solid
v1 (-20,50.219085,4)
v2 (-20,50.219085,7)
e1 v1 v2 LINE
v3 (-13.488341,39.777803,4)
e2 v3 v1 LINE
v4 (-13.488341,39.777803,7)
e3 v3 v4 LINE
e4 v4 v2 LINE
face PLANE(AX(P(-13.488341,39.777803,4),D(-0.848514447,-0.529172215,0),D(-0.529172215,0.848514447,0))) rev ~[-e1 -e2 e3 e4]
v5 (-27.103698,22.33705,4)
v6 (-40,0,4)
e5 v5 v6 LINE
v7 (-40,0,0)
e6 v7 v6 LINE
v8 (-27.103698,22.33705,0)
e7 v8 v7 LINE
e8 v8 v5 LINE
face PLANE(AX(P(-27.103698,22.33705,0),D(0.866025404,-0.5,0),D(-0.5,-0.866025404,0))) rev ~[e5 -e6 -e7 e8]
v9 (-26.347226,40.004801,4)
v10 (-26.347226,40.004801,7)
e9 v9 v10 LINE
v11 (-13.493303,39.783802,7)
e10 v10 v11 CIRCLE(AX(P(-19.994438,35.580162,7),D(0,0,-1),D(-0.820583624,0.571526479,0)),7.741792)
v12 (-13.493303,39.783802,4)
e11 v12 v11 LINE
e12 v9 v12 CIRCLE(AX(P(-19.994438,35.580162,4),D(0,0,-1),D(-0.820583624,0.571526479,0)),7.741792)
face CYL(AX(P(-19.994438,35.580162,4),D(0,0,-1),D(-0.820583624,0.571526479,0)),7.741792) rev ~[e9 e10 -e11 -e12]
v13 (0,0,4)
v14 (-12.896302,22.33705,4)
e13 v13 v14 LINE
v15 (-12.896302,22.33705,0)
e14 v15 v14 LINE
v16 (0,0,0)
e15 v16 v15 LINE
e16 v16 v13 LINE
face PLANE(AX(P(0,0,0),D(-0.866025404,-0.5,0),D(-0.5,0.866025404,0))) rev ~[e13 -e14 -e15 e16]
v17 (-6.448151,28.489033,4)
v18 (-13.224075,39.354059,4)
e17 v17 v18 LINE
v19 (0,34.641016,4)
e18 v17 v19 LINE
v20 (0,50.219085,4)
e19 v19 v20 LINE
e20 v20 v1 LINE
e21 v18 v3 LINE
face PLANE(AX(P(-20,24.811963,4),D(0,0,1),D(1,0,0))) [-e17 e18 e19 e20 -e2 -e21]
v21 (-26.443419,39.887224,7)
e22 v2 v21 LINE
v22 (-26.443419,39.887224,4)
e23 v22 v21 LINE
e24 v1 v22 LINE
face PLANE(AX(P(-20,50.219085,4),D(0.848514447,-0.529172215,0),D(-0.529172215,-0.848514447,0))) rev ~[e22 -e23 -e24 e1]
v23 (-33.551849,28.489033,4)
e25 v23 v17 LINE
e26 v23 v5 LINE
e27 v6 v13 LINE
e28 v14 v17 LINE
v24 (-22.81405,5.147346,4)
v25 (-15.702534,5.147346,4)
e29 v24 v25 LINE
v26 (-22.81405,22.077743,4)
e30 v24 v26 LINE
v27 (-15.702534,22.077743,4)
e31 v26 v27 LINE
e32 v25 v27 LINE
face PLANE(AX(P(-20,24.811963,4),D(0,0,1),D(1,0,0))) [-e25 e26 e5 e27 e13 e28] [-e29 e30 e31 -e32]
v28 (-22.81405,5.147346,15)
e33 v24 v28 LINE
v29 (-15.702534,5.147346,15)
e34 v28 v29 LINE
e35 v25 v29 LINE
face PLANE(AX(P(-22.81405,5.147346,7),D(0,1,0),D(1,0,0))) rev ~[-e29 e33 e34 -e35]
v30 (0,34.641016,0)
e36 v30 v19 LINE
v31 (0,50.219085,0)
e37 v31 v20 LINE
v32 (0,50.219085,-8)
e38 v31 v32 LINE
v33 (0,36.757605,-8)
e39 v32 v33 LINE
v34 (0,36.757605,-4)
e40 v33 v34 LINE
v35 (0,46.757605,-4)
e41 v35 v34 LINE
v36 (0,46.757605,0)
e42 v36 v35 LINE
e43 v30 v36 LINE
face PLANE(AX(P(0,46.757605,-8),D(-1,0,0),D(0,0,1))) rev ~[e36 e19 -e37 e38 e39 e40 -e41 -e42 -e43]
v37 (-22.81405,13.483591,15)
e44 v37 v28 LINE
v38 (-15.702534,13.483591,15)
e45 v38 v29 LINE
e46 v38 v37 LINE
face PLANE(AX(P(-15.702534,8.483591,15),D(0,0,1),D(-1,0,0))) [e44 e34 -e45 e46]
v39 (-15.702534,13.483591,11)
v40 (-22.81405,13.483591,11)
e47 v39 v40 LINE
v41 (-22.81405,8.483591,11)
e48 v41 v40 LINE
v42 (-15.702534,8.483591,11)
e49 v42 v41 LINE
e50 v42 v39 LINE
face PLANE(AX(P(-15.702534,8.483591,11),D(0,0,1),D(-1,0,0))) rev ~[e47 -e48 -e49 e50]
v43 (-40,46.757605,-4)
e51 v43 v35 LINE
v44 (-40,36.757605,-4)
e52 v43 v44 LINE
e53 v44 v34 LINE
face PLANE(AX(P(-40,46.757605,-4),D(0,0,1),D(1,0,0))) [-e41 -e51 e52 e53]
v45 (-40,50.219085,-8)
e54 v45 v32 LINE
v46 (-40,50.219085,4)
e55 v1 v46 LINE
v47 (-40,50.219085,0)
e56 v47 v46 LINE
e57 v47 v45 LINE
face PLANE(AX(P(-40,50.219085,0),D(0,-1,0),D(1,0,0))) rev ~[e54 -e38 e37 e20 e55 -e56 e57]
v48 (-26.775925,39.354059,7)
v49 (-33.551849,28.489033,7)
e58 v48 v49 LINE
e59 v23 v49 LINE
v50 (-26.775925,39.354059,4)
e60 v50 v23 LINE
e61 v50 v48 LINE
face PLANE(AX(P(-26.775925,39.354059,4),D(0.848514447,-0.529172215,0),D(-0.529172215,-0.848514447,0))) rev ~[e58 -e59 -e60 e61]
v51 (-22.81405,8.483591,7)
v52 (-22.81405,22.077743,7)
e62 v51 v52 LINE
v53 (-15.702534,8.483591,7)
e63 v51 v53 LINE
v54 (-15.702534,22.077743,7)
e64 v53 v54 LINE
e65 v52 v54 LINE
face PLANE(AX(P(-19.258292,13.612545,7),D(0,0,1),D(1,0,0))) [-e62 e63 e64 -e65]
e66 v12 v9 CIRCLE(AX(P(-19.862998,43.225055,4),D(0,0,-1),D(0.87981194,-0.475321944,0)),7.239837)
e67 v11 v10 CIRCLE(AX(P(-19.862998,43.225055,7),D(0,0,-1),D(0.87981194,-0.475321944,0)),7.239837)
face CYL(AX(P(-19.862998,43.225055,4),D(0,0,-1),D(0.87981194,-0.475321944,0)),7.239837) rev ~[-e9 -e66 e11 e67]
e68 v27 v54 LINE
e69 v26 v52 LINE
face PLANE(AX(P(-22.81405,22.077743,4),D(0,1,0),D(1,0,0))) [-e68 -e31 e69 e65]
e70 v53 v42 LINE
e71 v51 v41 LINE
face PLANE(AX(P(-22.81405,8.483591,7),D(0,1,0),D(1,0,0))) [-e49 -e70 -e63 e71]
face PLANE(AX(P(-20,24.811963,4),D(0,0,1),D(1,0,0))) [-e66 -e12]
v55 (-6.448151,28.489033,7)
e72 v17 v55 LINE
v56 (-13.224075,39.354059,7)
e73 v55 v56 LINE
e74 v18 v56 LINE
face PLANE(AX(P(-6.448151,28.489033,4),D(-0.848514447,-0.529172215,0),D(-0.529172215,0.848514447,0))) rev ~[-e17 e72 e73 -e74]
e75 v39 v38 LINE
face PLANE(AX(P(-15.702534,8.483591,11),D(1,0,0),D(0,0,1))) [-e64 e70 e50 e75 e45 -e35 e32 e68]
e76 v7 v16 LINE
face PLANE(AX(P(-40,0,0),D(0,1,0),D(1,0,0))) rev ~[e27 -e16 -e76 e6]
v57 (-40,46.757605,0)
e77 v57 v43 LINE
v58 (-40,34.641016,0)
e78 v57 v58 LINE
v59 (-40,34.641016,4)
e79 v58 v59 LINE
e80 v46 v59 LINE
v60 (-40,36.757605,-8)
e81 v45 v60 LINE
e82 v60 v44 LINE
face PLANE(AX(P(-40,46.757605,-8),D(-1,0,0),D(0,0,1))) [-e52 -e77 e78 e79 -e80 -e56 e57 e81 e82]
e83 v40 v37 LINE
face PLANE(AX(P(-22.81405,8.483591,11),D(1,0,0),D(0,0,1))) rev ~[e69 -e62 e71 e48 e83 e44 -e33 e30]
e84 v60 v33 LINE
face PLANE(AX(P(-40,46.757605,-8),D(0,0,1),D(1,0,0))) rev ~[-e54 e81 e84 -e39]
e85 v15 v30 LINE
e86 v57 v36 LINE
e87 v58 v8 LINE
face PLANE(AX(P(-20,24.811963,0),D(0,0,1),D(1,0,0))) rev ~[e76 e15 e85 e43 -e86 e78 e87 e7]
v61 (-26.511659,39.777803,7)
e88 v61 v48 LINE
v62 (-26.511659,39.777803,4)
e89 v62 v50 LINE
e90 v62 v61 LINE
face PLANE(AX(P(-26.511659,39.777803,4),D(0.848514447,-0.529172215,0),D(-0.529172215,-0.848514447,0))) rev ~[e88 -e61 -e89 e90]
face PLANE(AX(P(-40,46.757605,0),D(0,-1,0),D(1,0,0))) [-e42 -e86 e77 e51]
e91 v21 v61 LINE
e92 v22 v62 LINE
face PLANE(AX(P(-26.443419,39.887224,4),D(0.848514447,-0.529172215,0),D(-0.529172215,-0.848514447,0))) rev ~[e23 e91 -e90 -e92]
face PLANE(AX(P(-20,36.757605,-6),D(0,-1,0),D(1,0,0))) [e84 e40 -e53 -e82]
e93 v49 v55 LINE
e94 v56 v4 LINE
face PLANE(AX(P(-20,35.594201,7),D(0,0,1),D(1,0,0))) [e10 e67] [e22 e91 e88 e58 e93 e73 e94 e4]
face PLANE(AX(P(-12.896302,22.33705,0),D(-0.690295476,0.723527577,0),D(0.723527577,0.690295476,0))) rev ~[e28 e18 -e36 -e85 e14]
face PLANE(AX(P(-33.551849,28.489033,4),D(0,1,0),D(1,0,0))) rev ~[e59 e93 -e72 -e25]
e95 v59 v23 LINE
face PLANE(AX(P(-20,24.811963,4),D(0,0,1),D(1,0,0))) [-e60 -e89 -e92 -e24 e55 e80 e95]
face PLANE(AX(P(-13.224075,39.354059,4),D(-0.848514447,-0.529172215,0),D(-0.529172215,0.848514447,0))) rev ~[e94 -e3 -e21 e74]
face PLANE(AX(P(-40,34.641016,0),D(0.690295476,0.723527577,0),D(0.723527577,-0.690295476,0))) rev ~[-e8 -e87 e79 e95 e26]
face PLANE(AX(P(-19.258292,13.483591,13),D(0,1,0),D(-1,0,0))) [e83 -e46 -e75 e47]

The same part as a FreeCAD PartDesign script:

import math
import FreeCAD as App
import Part
import Sketcher
from FreeCAD import Vector
Q = App.Units.Quantity

doc = App.newDocument("Part")
body = doc.addObject("PartDesign::Body", "Body")

# Sketch on XY plane
sketch1 = body.newObject("Sketcher::SketchObject", "Sketch")
sketch1.AttachmentSupport = (doc.getObject("XY_Plane"), [""])
sketch1.MapMode = "FlatFace"
sketch1.addGeometry([
    Part.LineSegment(Vector(-40, 0, 0), Vector(0, 0, 0)),  # 0
    Part.LineSegment(Vector(0, 0, 0), Vector(-13, 22, 0)),  # 1
    Part.LineSegment(Vector(-13, 22, 0), Vector(0, 35, 0)),  # 2
    Part.LineSegment(Vector(0, 35, 0), Vector(0, 50, 0)),  # 3
    Part.LineSegment(Vector(0, 50, 0), Vector(-40, 50, 0)),  # 4
    Part.LineSegment(Vector(-40, 50, 0), Vector(-40, 35, 0)),  # 5
    Part.LineSegment(Vector(-40, 35, 0), Vector(-27, 22, 0)),  # 6
    Part.LineSegment(Vector(-27, 22, 0), Vector(-40, 0, 0)),  # 7
], False)
sketch1.addConstraint([
    Sketcher.Constraint("Coincident", 0, 2, 1, 1),
    Sketcher.Constraint("Coincident", 1, 2, 2, 1),
    Sketcher.Constraint("Coincident", 2, 2, 3, 1),
    Sketcher.Constraint("Coincident", 3, 2, 4, 1),
    Sketcher.Constraint("Coincident", 4, 2, 5, 1),
    Sketcher.Constraint("Coincident", 5, 2, 6, 1),
    Sketcher.Constraint("Coincident", 6, 2, 7, 1),
    Sketcher.Constraint("Coincident", 7, 2, 0, 1),
    Sketcher.Constraint("Horizontal", 0),
    Sketcher.Constraint("Vertical", 3),
    Sketcher.Constraint("Horizontal", 4),
    Sketcher.Constraint("Vertical", 5),
    Sketcher.Constraint("Coincident", 0, 2, -1, 1),
    Sketcher.Constraint("PointOnObject", 2, 2, -2),
    Sketcher.Constraint("Horizontal", 2, 2, 5, 2),
    Sketcher.Constraint("Horizontal", 1, 2, 6, 2),
    Sketcher.Constraint("Vertical", 5, 2, 7, 2),
    Sketcher.Constraint("Equal", 2, 6),
    Sketcher.Constraint("DistanceX", 0, 1, 0, 2, Q("40 mm")),
    Sketcher.Constraint("Angle", 1, Q("120 deg")),
    Sketcher.Constraint("DistanceY", 3, 1, 3, 2, Q("15.578069 mm")),
    Sketcher.Constraint("DistanceX", 1, 2, -1, 1, Q("12.896302 mm")),
    Sketcher.Constraint("Distance", 2, Q("17.824202 mm")),
])
pad1 = body.newObject("PartDesign::Pad", "Pad")
pad1.Profile = sketch1
pad1.Length = 4

# Sketch on XY plane
sketch2 = body.newObject("Sketcher::SketchObject", "Sketch001")
sketch2.AttachmentSupport = (doc.getObject("XY_Plane"), [""])
sketch2.MapMode = "FlatFace"
sketch2.addGeometry([
    Part.LineSegment(Vector(-40, 46.8, 0), Vector(-40, 50.2, 0)),
    Part.LineSegment(Vector(-40, 50.2, 0), Vector(0, 50.2, 0)),
    Part.LineSegment(Vector(0, 50.2, 0), Vector(0, 46.8, 0)),
    Part.LineSegment(Vector(0, 46.8, 0), Vector(-40, 46.8, 0)),
], False)
sketch2.addConstraint([
    Sketcher.Constraint("Coincident", 0, 2, 1, 1),
    Sketcher.Constraint("Coincident", 1, 2, 2, 1),
    Sketcher.Constraint("Coincident", 2, 2, 3, 1),
    Sketcher.Constraint("Coincident", 3, 2, 0, 1),
    Sketcher.Constraint("Vertical", 0),
    Sketcher.Constraint("Horizontal", 1),
    Sketcher.Constraint("Vertical", 2),
    Sketcher.Constraint("Horizontal", 3),
    Sketcher.Constraint("PointOnObject", 1, 2, -2),
    Sketcher.Constraint("DistanceX", 1, 1, 1, 2, Q("40 mm")),
    Sketcher.Constraint("DistanceY", 0, 1, 0, 2, Q("3.46148 mm")),
    Sketcher.Constraint("DistanceY", -1, 1, 0, 2, Q("50.219085 mm")),
])
pad2 = body.newObject("PartDesign::Pad", "Pad001")
pad2.Profile = sketch2
pad2.Length = 8
pad2.Reversed = True

# Sketch on XZ plane
sketch3 = body.newObject("Sketcher::SketchObject", "Sketch002")
sketch3.AttachmentSupport = (doc.getObject("XZ_Plane"), [""])
sketch3.MapMode = "FlatFace"
sketch3.AttachmentOffset = App.Placement(Vector(0, 0, -46.757605), App.Rotation())
sketch3.addGeometry([
    Part.LineSegment(Vector(-40, -4, 0), Vector(-40, -8, 0)),
    Part.LineSegment(Vector(-40, -8, 0), Vector(0, -8, 0)),
    Part.LineSegment(Vector(0, -8, 0), Vector(0, -4, 0)),
    Part.LineSegment(Vector(0, -4, 0), Vector(-40, -4, 0)),
], False)
sketch3.addConstraint([
    Sketcher.Constraint("Coincident", 0, 2, 1, 1),
    Sketcher.Constraint("Coincident", 1, 2, 2, 1),
    Sketcher.Constraint("Coincident", 2, 2, 3, 1),
    Sketcher.Constraint("Coincident", 3, 2, 0, 1),
    Sketcher.Constraint("Vertical", 0),
    Sketcher.Constraint("Horizontal", 1),
    Sketcher.Constraint("Vertical", 2),
    Sketcher.Constraint("Horizontal", 3),
    Sketcher.Constraint("PointOnObject", 1, 2, -2),
    Sketcher.Constraint("DistanceX", 1, 1, 1, 2, Q("40 mm")),
    Sketcher.Constraint("DistanceY", 0, 2, 0, 1, Q("4 mm")),
    Sketcher.Constraint("DistanceY", 0, 2, -1, 1, Q("8 mm")),
])
pad3 = body.newObject("PartDesign::Pad", "Pad002")
pad3.Profile = sketch3
pad3.Length = 10

# Sketch on XY plane
sketch4 = body.newObject("Sketcher::SketchObject", "Sketch003")
sketch4.AttachmentSupport = (doc.getObject("XY_Plane"), [""])
sketch4.MapMode = "FlatFace"
sketch4.AttachmentOffset = App.Placement(Vector(0, 0, 4), App.Rotation())
sketch4.addGeometry([
    Part.LineSegment(Vector(-23, 22, 0), Vector(-23, 5, 0)),
    Part.LineSegment(Vector(-23, 5, 0), Vector(-16, 5, 0)),
    Part.LineSegment(Vector(-16, 5, 0), Vector(-16, 22, 0)),
    Part.LineSegment(Vector(-16, 22, 0), Vector(-23, 22, 0)),
], False)
sketch4.addConstraint([
    Sketcher.Constraint("Coincident", 0, 2, 1, 1),
    Sketcher.Constraint("Coincident", 1, 2, 2, 1),
    Sketcher.Constraint("Coincident", 2, 2, 3, 1),
    Sketcher.Constraint("Coincident", 3, 2, 0, 1),
    Sketcher.Constraint("Vertical", 0),
    Sketcher.Constraint("Horizontal", 1),
    Sketcher.Constraint("Vertical", 2),
    Sketcher.Constraint("Horizontal", 3),
    Sketcher.Constraint("DistanceX", 1, 1, 1, 2, Q("7.111516 mm")),
    Sketcher.Constraint("DistanceY", 0, 2, 0, 1, Q("16.930397 mm")),
    Sketcher.Constraint("DistanceX", 0, 2, -1, 1, Q("22.81405 mm")),
    Sketcher.Constraint("DistanceY", -1, 1, 0, 2, Q("5.147346 mm")),
])
pad4 = body.newObject("PartDesign::Pad", "Pad003")
pad4.Profile = sketch4
pad4.Length = 3

# Sketch on XY plane
sketch5 = body.newObject("Sketcher::SketchObject", "Sketch004")
sketch5.AttachmentSupport = (doc.getObject("XY_Plane"), [""])
sketch5.MapMode = "FlatFace"
sketch5.AttachmentOffset = App.Placement(Vector(0, 0, 7), App.Rotation())
sketch5.addGeometry([
    Part.LineSegment(Vector(-22.8, 8.5, 0), Vector(-22.8, 5.1, 0)),
    Part.LineSegment(Vector(-22.8, 5.1, 0), Vector(-15.7, 5.1, 0)),
    Part.LineSegment(Vector(-15.7, 5.1, 0), Vector(-15.7, 8.5, 0)),
    Part.LineSegment(Vector(-15.7, 8.5, 0), Vector(-22.8, 8.5, 0)),
], False)
sketch5.addConstraint([
    Sketcher.Constraint("Coincident", 0, 2, 1, 1),
    Sketcher.Constraint("Coincident", 1, 2, 2, 1),
    Sketcher.Constraint("Coincident", 2, 2, 3, 1),
    Sketcher.Constraint("Coincident", 3, 2, 0, 1),
    Sketcher.Constraint("Vertical", 0),
    Sketcher.Constraint("Horizontal", 1),
    Sketcher.Constraint("Vertical", 2),
    Sketcher.Constraint("Horizontal", 3),
    Sketcher.Constraint("DistanceX", 1, 1, 1, 2, Q("7.111516 mm")),
    Sketcher.Constraint("DistanceY", 0, 2, 0, 1, Q("3.336244 mm")),
    Sketcher.Constraint("DistanceX", 0, 2, -1, 1, Q("22.81405 mm")),
    Sketcher.Constraint("DistanceY", -1, 1, 2, 2, Q("8.483591 mm")),
])
pad5 = body.newObject("PartDesign::Pad", "Pad004")
pad5.Profile = sketch5
pad5.Length = 8

# Sketch on XZ plane
sketch6 = body.newObject("Sketcher::SketchObject", "Sketch005")
sketch6.AttachmentSupport = (doc.getObject("XZ_Plane"), [""])
sketch6.MapMode = "FlatFace"
sketch6.AttachmentOffset = App.Placement(Vector(0, 0, -8.483591), App.Rotation())
sketch6.addGeometry([
    Part.LineSegment(Vector(-15.7, 15, 0), Vector(-15.7, 11, 0)),
    Part.LineSegment(Vector(-15.7, 11, 0), Vector(-22.8, 11, 0)),
    Part.LineSegment(Vector(-22.8, 11, 0), Vector(-22.8, 15, 0)),
    Part.LineSegment(Vector(-22.8, 15, 0), Vector(-15.7, 15, 0)),
], False)
sketch6.addConstraint([
    Sketcher.Constraint("Coincident", 0, 2, 1, 1),
    Sketcher.Constraint("Coincident", 1, 2, 2, 1),
    Sketcher.Constraint("Coincident", 2, 2, 3, 1),
    Sketcher.Constraint("Coincident", 3, 2, 0, 1),
    Sketcher.Constraint("Vertical", 0),
    Sketcher.Constraint("Horizontal", 1),
    Sketcher.Constraint("Vertical", 2),
    Sketcher.Constraint("Horizontal", 3),
    Sketcher.Constraint("DistanceY", 0, 2, 0, 1, Q("4 mm")),
    Sketcher.Constraint("DistanceY", -1, 1, 0, 2, Q("11 mm")),
    Sketcher.Constraint("DistanceX", 1, 2, 1, 1, Q("7.111516 mm")),
    Sketcher.Constraint("DistanceX", 1, 2, -1, 1, Q("22.81405 mm")),
])
pad6 = body.newObject("PartDesign::Pad", "Pad005")
pad6.Profile = sketch6
pad6.Length = 5
pad6.Reversed = True

# Sketch on XY plane
sketch7 = body.newObject("Sketcher::SketchObject", "Sketch006")
sketch7.AttachmentSupport = (doc.getObject("XY_Plane"), [""])
sketch7.MapMode = "FlatFace"
sketch7.AttachmentOffset = App.Placement(Vector(0, 0, 4), App.Rotation())
sketch7.addGeometry([
    Part.LineSegment(Vector(-20, 50.22, 0), Vector(-26.44, 39.89, 0)),  # 0
    Part.LineSegment(Vector(-26.44, 39.89, 0), Vector(-26.51, 39.78, 0)),  # 1
    Part.LineSegment(Vector(-26.51, 39.78, 0), Vector(-26.78, 39.35, 0)),  # 2
    Part.LineSegment(Vector(-26.78, 39.35, 0), Vector(-33.55, 28.49, 0)),  # 3
    Part.LineSegment(Vector(-33.55, 28.49, 0), Vector(-6.45, 28.49, 0)),  # 4
    Part.LineSegment(Vector(-6.45, 28.49, 0), Vector(-13.22, 39.35, 0)),  # 5
    Part.LineSegment(Vector(-13.22, 39.35, 0), Vector(-13.49, 39.78, 0)),  # 6
    Part.LineSegment(Vector(-13.49, 39.78, 0), Vector(-20, 50.22, 0)),  # 7
    Part.ArcOfCircle(Part.Circle(Vector(-19.86, 43.23, 0), Vector(0, 0, 1), 7.24), math.radians(-154), math.radians(-28)),  # 8
    Part.ArcOfCircle(Part.Circle(Vector(-19.99, 35.58, 0), Vector(0, 0, 1), 7.74), math.radians(33), math.radians(145)),  # 9
], False)
sketch7.addConstraint([
    Sketcher.Constraint("Coincident", 0, 2, 1, 1),
    Sketcher.Constraint("Coincident", 1, 2, 2, 1),
    Sketcher.Constraint("Coincident", 2, 2, 3, 1),
    Sketcher.Constraint("Coincident", 3, 2, 4, 1),
    Sketcher.Constraint("Coincident", 4, 2, 5, 1),
    Sketcher.Constraint("Coincident", 5, 2, 6, 1),
    Sketcher.Constraint("Coincident", 6, 2, 7, 1),
    Sketcher.Constraint("Coincident", 7, 2, 0, 1),
    Sketcher.Constraint("Coincident", 8, 1, 9, 2),
    Sketcher.Constraint("Coincident", 9, 1, 8, 2),
    Sketcher.Constraint("Horizontal", 4),
    Sketcher.Constraint("Parallel", 0, 1),
    Sketcher.Constraint("Parallel", 1, 2),
    Sketcher.Constraint("Parallel", 2, 3),
    Sketcher.Constraint("Parallel", 5, 6),
    Sketcher.Constraint("Parallel", 6, 7),
    Sketcher.Constraint("Horizontal", 2, 2, 5, 2),
    Sketcher.Constraint("Horizontal", 1, 2, 6, 2),
    Sketcher.Constraint("Equal", 3, 5),
    Sketcher.Constraint("DistanceX", 7, 2, -1, 1, Q("20 mm")),
    Sketcher.Constraint("Radius", 9, Q("7.741792 mm")),
    Sketcher.Constraint("DistanceX", 4, 1, 4, 2, Q("27.103698 mm")),
    Sketcher.Constraint("DistanceX", 8, 3, -1, 1, Q("19.862998 mm")),
    Sketcher.Constraint("Radius", 8, Q("7.239837 mm")),
    Sketcher.Constraint("DistanceY", 1, 2, 8, 1, Q("0.226998 mm")),
    Sketcher.Constraint("DistanceY", 6, 2, 9, 1, Q("0.005999 mm")),
    Sketcher.Constraint("DistanceY", -1, 1, 8, 1, Q("40.004801 mm")),
    Sketcher.Constraint("DistanceX", 2, 2, 8, 1, Q("0.428699 mm")),
    Sketcher.Constraint("Distance", 0, Q("12.176412 mm")),
    Sketcher.Constraint("DistanceY", -1, 1, 9, 3, Q("35.580162 mm")),
    Sketcher.Constraint("DistanceX", 0, 2, -1, 1, Q("26.443419 mm")),
    Sketcher.Constraint("DistanceX", 1, 2, -1, 1, Q("26.511659 mm")),
])
pad7 = body.newObject("PartDesign::Pad", "Pad006")
pad7.Profile = sketch7
pad7.Length = 3

doc.recompute()
